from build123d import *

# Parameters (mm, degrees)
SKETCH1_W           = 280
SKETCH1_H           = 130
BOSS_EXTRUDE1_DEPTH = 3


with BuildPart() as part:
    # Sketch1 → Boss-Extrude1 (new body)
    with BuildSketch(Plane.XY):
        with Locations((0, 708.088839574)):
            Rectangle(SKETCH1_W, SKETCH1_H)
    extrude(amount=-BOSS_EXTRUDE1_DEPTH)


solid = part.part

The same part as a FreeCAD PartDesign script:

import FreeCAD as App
import Part
import Sketcher


def add_polygon(sketch, points):
    """Adds a closed chain of lines whose ends are joined by coincident constraints."""
    first, n = sketch.GeometryCount, len(points)
    for a, b in zip(points, points[1:] + points[:1]):
        sketch.addGeometry(Part.LineSegment(App.Vector(*a, 0), App.Vector(*b, 0)), False)
    for i in range(n):
        sketch.addConstraint(Sketcher.Constraint("Coincident", first + i, 2, first + (i + 1) % n, 1))

doc = App.newDocument("Part")
params = doc.addObject("Spreadsheet::Sheet", "Params")
for row, (alias, value) in enumerate([
    ("sketch1_width", "280 mm"),
    ("sketch1_height", "130 mm"),
    ("pad1_length", "3 mm"),
], start=1):
    params.set(f"A{row}", alias)
    params.set(f"B{row}", "=" + value)
    params.setAlias(f"B{row}", alias)

body = doc.addObject("PartDesign::Body", "Body")

sketch1 = doc.addObject("Sketcher::SketchObject", "Sketch")
body.addObject(sketch1)
sketch1.AttachmentSupport = (doc.XY_Plane, [""])
sketch1.MapMode = "FlatFace"
add_polygon(sketch1, [(-140, 773), (-140, 643), (140, 643), (140, 773)])
sketch1.addConstraint([
    Sketcher.Constraint("Vertical", 0),
    Sketcher.Constraint("Horizontal", 1),
    Sketcher.Constraint("Vertical", 2),
    Sketcher.Constraint("Horizontal", 3),
    Sketcher.Constraint("DistanceX", 1, 1, 1, 2, 280.0),
    Sketcher.Constraint("DistanceY", 0, 2, 0, 1, 130.0),
    Sketcher.Constraint("DistanceX", 0, 2, -1, 1, 140.0),
    Sketcher.Constraint("DistanceY", -1, 1, 0, 2, 643.08884),
])
sketch1.setExpression("Constraints[8]", "Params.sketch1_width")
sketch1.setExpression("Constraints[9]", "Params.sketch1_height")
pad1 = doc.addObject("PartDesign::Pad", "Pad")
body.addObject(pad1)
pad1.Profile = sketch1
pad1.setExpression("Length", "Params.pad1_length")
pad1.Reversed = True

doc.recompute()
